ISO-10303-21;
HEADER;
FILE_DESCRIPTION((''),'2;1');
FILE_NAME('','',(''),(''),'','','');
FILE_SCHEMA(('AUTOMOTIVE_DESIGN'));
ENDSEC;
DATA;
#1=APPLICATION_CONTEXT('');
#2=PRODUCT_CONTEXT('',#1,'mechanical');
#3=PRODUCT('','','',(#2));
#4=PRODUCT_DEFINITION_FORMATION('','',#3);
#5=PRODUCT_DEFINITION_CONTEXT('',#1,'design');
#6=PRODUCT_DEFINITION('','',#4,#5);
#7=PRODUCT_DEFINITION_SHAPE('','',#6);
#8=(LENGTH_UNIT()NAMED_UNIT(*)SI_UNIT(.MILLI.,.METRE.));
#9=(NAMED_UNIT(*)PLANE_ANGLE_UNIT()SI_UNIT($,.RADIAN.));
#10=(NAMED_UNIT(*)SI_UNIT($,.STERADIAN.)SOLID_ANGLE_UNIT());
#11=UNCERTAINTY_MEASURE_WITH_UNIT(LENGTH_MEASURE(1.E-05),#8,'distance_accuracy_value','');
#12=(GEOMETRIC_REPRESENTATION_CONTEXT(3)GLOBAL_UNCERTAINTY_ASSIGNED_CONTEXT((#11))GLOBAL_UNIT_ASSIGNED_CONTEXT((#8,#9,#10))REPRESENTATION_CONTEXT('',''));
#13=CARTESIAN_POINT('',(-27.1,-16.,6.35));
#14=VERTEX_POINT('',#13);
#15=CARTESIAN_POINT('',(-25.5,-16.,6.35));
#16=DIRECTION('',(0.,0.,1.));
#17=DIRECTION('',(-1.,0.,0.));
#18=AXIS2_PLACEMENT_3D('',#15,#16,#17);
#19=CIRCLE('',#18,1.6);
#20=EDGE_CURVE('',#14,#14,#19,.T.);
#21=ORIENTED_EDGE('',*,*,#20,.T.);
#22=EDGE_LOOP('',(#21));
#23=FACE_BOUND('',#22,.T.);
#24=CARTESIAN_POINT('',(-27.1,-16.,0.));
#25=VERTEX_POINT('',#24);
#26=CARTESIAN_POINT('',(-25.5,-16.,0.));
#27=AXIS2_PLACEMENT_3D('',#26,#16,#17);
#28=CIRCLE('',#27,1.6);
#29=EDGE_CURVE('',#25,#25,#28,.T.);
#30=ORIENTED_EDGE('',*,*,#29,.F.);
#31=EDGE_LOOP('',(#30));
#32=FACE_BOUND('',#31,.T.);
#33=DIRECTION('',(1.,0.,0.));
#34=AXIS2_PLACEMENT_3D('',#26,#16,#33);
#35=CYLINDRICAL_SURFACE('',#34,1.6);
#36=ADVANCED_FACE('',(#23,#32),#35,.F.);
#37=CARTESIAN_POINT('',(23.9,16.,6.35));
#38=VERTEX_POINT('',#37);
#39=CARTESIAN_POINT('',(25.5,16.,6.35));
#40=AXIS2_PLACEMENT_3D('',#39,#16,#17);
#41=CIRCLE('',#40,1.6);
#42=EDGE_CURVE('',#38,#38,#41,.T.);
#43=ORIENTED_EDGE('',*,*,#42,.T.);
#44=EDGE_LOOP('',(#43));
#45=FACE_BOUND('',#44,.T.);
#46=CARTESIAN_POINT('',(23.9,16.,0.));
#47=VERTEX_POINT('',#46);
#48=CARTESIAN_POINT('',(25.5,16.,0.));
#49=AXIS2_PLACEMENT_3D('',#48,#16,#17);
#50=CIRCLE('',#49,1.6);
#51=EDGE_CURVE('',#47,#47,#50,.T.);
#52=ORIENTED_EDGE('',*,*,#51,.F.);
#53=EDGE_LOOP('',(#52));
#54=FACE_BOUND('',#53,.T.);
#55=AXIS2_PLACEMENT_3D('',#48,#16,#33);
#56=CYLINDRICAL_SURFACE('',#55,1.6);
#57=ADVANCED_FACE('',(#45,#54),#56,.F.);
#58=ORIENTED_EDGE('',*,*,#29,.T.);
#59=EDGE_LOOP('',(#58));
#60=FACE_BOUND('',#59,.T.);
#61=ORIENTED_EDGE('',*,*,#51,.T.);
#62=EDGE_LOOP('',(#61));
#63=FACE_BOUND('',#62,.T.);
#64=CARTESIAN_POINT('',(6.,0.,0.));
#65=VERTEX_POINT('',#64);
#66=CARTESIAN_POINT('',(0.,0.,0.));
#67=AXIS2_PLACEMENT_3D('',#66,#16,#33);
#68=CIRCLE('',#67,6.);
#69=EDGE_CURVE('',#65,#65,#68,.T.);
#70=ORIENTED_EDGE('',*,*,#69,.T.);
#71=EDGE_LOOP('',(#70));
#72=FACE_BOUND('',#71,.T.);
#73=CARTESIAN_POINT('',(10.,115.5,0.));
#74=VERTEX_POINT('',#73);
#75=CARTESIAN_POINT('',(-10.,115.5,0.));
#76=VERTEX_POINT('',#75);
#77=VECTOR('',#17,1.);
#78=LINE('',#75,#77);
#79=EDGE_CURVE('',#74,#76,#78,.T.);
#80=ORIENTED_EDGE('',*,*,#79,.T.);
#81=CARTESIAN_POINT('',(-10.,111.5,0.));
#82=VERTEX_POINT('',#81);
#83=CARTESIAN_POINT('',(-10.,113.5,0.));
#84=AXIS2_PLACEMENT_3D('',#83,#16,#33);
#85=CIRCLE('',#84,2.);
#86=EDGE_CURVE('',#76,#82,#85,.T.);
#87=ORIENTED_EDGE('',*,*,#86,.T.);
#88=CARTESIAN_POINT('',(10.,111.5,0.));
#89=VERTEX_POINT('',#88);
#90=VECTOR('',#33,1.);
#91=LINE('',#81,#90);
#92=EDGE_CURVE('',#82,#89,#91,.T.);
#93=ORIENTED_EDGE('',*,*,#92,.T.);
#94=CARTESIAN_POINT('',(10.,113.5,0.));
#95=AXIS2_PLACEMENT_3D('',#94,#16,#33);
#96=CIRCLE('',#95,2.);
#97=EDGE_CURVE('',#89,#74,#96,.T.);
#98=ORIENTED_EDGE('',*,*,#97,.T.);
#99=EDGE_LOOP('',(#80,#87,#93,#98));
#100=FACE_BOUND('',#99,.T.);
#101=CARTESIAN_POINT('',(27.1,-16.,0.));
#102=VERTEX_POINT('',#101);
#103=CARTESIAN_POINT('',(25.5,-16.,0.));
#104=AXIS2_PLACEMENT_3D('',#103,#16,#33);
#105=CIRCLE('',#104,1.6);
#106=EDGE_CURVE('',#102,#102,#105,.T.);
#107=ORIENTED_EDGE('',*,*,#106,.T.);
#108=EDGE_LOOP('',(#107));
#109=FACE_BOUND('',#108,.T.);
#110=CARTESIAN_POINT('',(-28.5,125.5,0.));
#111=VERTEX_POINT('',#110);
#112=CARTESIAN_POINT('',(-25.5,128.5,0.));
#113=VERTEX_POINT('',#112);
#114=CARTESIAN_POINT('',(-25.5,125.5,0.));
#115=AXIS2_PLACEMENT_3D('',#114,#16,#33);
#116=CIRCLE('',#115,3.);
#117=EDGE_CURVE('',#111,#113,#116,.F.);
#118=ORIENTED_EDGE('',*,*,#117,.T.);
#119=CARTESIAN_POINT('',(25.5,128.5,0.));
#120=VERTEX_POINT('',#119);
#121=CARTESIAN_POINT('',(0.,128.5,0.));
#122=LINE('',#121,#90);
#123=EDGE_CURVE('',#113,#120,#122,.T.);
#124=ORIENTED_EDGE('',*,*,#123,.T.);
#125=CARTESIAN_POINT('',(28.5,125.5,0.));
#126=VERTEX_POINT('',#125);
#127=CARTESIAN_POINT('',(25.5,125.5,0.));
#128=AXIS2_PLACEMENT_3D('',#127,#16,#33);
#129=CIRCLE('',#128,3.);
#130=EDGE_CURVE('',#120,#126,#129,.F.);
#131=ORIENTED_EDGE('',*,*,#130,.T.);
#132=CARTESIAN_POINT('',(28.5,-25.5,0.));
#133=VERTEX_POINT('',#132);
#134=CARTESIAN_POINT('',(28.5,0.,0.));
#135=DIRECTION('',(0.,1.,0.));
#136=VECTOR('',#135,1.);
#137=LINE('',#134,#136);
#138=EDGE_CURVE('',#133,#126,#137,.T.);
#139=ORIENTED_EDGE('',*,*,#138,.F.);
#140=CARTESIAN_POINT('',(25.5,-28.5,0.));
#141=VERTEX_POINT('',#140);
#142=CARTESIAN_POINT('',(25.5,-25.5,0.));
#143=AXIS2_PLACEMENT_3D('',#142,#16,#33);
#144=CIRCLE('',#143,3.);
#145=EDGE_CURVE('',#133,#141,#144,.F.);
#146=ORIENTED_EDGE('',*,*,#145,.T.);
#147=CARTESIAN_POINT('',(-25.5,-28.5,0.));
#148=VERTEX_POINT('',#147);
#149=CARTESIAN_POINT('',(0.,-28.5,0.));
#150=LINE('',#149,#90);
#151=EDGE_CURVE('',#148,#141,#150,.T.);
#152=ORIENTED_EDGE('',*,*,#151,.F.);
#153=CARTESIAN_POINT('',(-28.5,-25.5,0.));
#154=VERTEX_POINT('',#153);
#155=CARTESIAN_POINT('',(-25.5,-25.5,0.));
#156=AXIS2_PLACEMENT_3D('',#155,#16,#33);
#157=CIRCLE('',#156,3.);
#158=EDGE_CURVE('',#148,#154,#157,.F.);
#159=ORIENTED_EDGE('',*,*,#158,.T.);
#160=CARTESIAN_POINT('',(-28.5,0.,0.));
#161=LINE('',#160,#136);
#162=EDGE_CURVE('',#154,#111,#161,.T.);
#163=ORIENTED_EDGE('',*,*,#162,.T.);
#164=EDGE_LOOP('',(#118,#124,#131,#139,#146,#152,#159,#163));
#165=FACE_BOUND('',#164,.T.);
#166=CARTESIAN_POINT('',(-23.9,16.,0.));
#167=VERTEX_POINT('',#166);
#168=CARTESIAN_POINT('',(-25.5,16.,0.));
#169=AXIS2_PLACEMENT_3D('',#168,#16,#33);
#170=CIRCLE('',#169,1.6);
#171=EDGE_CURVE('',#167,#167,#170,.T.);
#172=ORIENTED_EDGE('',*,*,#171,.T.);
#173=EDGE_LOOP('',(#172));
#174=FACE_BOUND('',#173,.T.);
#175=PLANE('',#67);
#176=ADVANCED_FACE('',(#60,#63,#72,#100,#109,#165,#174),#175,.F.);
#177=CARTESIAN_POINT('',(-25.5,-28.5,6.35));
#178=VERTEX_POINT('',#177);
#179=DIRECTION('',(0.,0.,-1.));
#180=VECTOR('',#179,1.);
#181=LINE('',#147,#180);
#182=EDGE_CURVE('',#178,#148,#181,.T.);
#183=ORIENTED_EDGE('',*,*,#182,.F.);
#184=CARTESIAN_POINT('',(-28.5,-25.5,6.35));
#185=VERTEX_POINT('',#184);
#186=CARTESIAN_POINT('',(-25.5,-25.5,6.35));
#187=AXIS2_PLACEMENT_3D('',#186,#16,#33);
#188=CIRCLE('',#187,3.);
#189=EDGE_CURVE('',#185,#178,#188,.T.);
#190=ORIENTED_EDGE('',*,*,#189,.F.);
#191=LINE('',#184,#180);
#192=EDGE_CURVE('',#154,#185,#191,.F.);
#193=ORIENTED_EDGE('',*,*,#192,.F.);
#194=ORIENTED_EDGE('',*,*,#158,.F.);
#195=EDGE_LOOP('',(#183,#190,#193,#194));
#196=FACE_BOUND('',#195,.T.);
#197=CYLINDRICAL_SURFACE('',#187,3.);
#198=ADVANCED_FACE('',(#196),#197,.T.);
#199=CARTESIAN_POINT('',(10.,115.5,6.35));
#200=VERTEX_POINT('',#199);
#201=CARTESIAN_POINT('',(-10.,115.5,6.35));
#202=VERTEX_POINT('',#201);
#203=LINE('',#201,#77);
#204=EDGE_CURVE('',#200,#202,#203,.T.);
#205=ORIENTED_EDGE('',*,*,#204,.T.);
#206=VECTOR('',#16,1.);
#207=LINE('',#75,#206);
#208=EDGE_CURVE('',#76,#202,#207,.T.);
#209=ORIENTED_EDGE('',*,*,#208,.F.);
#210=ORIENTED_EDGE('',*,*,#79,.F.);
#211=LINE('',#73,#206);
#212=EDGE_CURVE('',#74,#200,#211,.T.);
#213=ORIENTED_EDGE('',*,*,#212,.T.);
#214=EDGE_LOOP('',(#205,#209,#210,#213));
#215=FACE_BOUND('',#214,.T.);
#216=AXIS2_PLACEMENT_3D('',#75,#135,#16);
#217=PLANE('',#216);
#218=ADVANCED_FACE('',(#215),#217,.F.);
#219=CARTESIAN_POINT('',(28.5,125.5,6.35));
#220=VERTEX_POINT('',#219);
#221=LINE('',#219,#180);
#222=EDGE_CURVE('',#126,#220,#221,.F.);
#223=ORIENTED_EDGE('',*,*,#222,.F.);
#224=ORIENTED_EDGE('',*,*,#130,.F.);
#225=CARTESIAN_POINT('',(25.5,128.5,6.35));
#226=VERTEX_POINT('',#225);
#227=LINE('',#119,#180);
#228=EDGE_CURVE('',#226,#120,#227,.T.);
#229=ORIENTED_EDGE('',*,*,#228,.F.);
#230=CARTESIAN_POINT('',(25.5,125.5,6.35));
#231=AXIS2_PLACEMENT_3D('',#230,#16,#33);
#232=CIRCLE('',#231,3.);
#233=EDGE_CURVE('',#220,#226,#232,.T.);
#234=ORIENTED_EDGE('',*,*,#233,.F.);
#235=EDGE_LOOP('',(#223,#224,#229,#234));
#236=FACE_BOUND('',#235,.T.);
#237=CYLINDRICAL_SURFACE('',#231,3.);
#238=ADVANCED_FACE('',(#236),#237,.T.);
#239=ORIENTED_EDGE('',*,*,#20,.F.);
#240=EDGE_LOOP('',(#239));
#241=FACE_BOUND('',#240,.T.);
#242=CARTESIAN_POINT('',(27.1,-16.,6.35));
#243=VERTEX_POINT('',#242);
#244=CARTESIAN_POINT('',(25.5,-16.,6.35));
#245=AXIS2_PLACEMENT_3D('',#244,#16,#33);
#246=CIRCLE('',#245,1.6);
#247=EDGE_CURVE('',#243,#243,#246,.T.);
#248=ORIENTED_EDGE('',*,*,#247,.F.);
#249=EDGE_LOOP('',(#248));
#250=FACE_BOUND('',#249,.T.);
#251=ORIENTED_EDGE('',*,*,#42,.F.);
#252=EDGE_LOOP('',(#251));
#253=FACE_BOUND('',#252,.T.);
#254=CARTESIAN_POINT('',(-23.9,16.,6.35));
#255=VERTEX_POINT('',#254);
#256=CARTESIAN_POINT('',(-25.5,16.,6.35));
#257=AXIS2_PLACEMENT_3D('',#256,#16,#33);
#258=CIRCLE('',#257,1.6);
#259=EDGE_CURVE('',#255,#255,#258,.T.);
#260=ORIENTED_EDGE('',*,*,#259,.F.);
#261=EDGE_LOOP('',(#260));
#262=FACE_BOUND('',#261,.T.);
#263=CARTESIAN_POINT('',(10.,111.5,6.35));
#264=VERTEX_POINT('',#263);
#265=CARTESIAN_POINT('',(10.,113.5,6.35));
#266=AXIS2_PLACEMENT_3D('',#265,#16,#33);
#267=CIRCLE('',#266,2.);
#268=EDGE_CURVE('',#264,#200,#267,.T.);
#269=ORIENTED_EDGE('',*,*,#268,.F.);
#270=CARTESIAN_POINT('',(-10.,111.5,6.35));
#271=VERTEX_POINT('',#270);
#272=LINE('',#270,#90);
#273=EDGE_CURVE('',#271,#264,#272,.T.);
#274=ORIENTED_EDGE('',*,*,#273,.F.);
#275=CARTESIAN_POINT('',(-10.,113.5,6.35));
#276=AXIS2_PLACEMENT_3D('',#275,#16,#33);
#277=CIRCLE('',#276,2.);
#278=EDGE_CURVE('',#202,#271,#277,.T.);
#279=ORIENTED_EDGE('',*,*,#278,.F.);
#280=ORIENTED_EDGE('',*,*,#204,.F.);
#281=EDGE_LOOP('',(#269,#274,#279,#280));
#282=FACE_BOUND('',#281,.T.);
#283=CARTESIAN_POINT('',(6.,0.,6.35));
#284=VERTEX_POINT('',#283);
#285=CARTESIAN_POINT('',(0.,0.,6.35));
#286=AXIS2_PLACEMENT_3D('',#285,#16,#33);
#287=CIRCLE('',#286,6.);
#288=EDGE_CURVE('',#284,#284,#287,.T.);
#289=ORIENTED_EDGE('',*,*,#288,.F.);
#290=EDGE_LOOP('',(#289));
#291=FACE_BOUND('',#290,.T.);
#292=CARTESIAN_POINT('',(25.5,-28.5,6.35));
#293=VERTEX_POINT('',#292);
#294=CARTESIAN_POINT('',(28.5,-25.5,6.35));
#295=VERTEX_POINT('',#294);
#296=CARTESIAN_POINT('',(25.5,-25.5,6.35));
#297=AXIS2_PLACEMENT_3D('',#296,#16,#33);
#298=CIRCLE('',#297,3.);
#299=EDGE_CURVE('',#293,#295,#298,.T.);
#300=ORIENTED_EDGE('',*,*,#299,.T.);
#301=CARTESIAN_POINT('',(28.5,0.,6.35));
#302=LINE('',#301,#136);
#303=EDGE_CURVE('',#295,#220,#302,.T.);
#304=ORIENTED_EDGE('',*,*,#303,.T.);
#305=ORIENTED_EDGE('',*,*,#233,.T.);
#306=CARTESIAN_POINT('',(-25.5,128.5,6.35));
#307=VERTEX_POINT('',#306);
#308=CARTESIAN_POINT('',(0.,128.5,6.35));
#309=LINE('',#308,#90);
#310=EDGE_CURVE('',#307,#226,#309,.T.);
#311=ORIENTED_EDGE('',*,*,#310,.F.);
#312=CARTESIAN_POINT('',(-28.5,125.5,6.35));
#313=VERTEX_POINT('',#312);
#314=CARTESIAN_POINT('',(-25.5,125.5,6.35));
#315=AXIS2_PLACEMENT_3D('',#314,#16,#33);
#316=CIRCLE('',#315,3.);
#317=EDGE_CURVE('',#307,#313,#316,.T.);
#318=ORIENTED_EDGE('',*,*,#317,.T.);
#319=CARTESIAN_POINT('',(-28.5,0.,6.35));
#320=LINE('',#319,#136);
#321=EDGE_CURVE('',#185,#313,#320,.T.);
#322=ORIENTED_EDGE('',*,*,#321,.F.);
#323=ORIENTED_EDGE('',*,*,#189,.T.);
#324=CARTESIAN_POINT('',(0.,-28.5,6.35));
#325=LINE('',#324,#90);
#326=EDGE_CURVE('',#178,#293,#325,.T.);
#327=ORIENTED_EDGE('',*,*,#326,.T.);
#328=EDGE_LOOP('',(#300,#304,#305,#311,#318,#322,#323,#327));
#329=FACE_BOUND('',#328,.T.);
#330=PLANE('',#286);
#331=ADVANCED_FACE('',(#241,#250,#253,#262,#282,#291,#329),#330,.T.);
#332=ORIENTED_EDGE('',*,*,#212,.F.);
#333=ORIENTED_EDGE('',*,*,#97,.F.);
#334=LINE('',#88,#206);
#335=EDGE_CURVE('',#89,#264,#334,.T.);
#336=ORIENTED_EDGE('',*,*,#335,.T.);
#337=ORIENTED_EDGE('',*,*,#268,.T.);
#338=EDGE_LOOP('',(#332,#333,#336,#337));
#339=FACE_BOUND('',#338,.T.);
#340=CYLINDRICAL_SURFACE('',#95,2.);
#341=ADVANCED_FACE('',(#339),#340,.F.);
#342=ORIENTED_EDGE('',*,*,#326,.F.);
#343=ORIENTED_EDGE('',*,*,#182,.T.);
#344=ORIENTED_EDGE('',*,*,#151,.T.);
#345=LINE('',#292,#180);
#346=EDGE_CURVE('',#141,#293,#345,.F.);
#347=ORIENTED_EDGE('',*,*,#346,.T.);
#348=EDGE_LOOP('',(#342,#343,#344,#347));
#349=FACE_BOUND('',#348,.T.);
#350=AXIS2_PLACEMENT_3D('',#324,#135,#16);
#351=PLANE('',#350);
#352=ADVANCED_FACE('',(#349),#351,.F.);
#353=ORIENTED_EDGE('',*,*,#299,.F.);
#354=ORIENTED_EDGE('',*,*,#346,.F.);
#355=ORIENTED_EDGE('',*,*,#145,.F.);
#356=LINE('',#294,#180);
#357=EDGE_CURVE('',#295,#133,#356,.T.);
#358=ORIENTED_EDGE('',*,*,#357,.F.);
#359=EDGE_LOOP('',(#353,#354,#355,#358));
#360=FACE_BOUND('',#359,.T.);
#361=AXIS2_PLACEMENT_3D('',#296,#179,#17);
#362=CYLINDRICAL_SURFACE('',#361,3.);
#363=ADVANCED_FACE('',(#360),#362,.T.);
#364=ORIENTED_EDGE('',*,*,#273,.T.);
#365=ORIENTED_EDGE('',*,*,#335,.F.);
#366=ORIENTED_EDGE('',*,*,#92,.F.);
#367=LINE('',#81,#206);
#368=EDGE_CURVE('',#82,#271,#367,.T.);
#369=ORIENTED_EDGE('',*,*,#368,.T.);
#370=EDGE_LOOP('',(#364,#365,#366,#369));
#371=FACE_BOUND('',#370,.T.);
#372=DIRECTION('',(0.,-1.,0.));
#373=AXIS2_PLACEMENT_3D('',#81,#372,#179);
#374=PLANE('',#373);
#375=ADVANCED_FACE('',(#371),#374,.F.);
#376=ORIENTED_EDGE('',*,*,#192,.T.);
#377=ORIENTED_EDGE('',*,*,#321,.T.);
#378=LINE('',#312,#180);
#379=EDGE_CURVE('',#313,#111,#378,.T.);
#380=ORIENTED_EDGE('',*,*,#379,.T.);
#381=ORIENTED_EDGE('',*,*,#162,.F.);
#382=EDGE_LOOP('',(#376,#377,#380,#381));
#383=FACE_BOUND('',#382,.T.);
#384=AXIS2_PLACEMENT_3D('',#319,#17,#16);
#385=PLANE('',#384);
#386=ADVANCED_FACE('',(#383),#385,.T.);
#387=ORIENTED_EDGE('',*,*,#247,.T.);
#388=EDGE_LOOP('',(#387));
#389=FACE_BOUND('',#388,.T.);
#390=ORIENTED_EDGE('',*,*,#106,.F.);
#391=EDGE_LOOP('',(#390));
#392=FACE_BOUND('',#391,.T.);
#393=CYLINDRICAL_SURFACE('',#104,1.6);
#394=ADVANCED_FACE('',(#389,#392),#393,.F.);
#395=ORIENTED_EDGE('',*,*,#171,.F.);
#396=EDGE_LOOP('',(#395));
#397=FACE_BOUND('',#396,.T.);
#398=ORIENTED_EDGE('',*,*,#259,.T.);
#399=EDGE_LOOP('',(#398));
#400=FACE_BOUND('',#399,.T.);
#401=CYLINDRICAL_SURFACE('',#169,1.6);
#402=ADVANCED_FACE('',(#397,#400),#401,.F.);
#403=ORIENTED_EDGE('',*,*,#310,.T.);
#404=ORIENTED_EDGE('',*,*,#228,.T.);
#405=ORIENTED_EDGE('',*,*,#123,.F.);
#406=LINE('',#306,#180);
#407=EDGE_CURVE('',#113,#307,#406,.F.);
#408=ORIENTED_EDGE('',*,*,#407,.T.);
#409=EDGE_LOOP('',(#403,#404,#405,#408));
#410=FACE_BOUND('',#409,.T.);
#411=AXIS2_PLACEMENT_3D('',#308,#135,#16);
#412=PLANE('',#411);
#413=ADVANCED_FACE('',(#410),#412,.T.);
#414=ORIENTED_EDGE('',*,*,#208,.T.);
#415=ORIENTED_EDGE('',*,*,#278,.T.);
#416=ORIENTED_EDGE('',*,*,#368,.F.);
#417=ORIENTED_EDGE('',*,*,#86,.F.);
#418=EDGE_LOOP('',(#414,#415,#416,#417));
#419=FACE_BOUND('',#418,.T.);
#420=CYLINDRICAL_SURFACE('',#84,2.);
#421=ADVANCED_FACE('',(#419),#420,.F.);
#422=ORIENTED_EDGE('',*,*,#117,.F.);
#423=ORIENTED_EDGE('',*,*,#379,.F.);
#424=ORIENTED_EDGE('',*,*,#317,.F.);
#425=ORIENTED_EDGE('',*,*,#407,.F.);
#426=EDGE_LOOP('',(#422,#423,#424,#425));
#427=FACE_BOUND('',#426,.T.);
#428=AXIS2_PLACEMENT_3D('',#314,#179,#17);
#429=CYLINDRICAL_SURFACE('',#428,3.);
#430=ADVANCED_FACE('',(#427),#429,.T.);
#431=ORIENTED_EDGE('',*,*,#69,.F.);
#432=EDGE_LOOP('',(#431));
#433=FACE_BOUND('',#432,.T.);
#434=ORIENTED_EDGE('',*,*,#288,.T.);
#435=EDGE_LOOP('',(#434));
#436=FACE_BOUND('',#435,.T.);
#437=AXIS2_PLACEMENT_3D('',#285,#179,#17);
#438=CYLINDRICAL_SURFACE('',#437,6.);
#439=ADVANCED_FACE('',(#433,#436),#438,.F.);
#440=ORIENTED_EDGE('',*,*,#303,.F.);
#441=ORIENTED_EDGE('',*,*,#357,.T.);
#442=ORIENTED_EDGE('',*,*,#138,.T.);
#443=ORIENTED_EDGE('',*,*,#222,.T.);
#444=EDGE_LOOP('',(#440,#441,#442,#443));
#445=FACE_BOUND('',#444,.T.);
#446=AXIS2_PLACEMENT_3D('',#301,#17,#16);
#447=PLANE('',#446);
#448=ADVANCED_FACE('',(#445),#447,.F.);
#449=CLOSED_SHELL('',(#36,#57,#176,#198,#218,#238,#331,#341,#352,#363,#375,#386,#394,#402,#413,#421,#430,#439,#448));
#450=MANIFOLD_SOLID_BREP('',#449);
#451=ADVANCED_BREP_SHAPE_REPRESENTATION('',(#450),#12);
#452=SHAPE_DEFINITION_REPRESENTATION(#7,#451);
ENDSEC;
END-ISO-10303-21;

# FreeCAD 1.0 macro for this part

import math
import FreeCAD as App
import Part
import Sketcher
Q = App.Units.Quantity


def edges_at(feature, points):
    """Names of the edges that pass closest to the given points."""
    edges = feature.Shape.Edges
    near = lambda p: min(range(len(edges)), key=lambda i: edges[i].distToShape(Part.Vertex(*p))[0])
    return sorted({f"Edge{near(p) + 1}" for p in points})

doc = App.newDocument("Part")
body = doc.addObject("PartDesign::Body", "Body")

sketch1 = body.newObject("Sketcher::SketchObject", "Sketch")
sketch1.AttachmentSupport = (doc.getObject("XY_Plane"), [""])
sketch1.MapMode = "FlatFace"
sketch1.addGeometry([
    Part.LineSegment(App.Vector(-28.5, 128.5, 0), App.Vector(-28.5, -28.5, 0)),
    Part.LineSegment(App.Vector(-28.5, -28.5, 0), App.Vector(28.5, -28.5, 0)),
    Part.LineSegment(App.Vector(28.5, -28.5, 0), App.Vector(28.5, 128.5, 0)),
    Part.LineSegment(App.Vector(28.5, 128.5, 0), App.Vector(-28.5, 128.5, 0)),
    Part.Circle(App.Vector(0, 0, 0), App.Vector(0, 0, 1), 6),
], False)
sketch1.addConstraint([
    Sketcher.Constraint("Coincident", 0, 2, 1, 1),
    Sketcher.Constraint("Coincident", 1, 2, 2, 1),
    Sketcher.Constraint("Coincident", 2, 2, 3, 1),
    Sketcher.Constraint("Coincident", 3, 2, 0, 1),
    Sketcher.Constraint("Vertical", 0),
    Sketcher.Constraint("Horizontal", 1),
    Sketcher.Constraint("Vertical", 2),
    Sketcher.Constraint("Horizontal", 3),
    Sketcher.Constraint("Coincident", 4, 3, -1, 1),
    Sketcher.Constraint("Diameter", 4, Q("12 mm")),
    Sketcher.Constraint("DistanceX", 1, 1, 1, 2, Q("57 mm")),
    Sketcher.Constraint("DistanceY", 0, 2, 0, 1, Q("157 mm")),
    Sketcher.Constraint("DistanceX", 0, 2, -1, 1, Q("28.5 mm")),
    Sketcher.Constraint("DistanceY", 0, 2, -1, 1, Q("28.5 mm")),
])
pad1 = body.newObject("PartDesign::Pad", "Pad")
pad1.Profile = sketch1
pad1.Length = 6.35

sketch2 = body.newObject("Sketcher::SketchObject", "Sketch001")
sketch2.AttachmentSupport = (doc.getObject("XY_Plane"), [""])
sketch2.MapMode = "FlatFace"
sketch2.AttachmentOffset = App.Placement(App.Vector(0, 0, 6.35), App.Rotation())
sketch2.addGeometry([
    Part.LineSegment(App.Vector(10, 115.5, 0), App.Vector(-10, 115.5, 0)),
    Part.ArcOfCircle(Part.Circle(App.Vector(-10, 113.5, 0), App.Vector(0, 0, 1), 2), math.radians(90), math.radians(270)),
    Part.LineSegment(App.Vector(-10, 111.5, 0), App.Vector(10, 111.5, 0)),
    Part.ArcOfCircle(Part.Circle(App.Vector(10, 113.5, 0), App.Vector(0, 0, 1), 2), math.radians(-90), math.radians(90)),
], False)
sketch2.addConstraint([
    Sketcher.Constraint("Tangent", 0, 2, 1, 1),
    Sketcher.Constraint("Tangent", 1, 2, 2, 1),
    Sketcher.Constraint("Tangent", 2, 2, 3, 1),
    Sketcher.Constraint("Tangent", 3, 2, 0, 1),
    Sketcher.Constraint("Horizontal", 0),
    Sketcher.Constraint("Horizontal", 2),
    Sketcher.Constraint("Radius", 1, Q("2 mm")),
    Sketcher.Constraint("DistanceX", 0, 2, 0, 1, Q("20 mm")),
    Sketcher.Constraint("DistanceX", 1, 3, -1, 1, Q("10 mm")),
    Sketcher.Constraint("DistanceY", -1, 1, 1, 3, Q("113.5 mm")),
])
pocket1 = body.newObject("PartDesign::Pocket", "Pocket")
pocket1.Profile = sketch2
pocket1.Type = "ThroughAll"
doc.recompute()

fillet = body.newObject("PartDesign::Fillet", "Fillet")
fillet.Base = (pocket1, edges_at(pocket1, [
    (-28.5, 128.5, 3.175),
    (28.5, 128.5, 3.175),
    (28.5, -28.5, 3.175),
    (-28.5, -28.5, 3.175),
]))
fillet.Radius = 3

sketch3 = body.newObject("Sketcher::SketchObject", "Sketch002")
sketch3.AttachmentSupport = (doc.getObject("XY_Plane"), [""])
sketch3.MapMode = "FlatFace"
sketch3.AttachmentOffset = App.Placement(App.Vector(0, 0, 6.35), App.Rotation())
sketch3.addGeometry([
    Part.Circle(App.Vector(25.5, -16, 0), App.Vector(0, 0, 1), 1.6),
    Part.Circle(App.Vector(-25.5, -16, 0), App.Vector(0, 0, 1), 1.6),
    Part.Circle(App.Vector(25.5, 16, 0), App.Vector(0, 0, 1), 1.6),
    Part.Circle(App.Vector(-25.5, 16, 0), App.Vector(0, 0, 1), 1.6),
], False)
sketch3.addConstraint([
    Sketcher.Constraint("Equal", 0, 1),
    Sketcher.Constraint("Equal", 1, 2),
    Sketcher.Constraint("Equal", 2, 3),
    Sketcher.Constraint("Symmetric", 1, 3, 2, 3, -1, 1),
    Sketcher.Constraint("Symmetric", 0, 3, 3, 3, -1, 1),
    Sketcher.Constraint("Symmetric", 0, 3, 1, 3, -2),
    Sketcher.Constraint("Diameter", 0, Q("3.2 mm")),
    Sketcher.Constraint("DistanceY", 0, 3, -1, 1, Q("16 mm")),
    Sketcher.Constraint("DistanceX", 1, 3, 0, 3, Q("51 mm")),
])
pocket2 = body.newObject("PartDesign::Pocket", "Pocket001")
pocket2.Profile = sketch3
pocket2.Type = "ThroughAll"

doc.recompute()
